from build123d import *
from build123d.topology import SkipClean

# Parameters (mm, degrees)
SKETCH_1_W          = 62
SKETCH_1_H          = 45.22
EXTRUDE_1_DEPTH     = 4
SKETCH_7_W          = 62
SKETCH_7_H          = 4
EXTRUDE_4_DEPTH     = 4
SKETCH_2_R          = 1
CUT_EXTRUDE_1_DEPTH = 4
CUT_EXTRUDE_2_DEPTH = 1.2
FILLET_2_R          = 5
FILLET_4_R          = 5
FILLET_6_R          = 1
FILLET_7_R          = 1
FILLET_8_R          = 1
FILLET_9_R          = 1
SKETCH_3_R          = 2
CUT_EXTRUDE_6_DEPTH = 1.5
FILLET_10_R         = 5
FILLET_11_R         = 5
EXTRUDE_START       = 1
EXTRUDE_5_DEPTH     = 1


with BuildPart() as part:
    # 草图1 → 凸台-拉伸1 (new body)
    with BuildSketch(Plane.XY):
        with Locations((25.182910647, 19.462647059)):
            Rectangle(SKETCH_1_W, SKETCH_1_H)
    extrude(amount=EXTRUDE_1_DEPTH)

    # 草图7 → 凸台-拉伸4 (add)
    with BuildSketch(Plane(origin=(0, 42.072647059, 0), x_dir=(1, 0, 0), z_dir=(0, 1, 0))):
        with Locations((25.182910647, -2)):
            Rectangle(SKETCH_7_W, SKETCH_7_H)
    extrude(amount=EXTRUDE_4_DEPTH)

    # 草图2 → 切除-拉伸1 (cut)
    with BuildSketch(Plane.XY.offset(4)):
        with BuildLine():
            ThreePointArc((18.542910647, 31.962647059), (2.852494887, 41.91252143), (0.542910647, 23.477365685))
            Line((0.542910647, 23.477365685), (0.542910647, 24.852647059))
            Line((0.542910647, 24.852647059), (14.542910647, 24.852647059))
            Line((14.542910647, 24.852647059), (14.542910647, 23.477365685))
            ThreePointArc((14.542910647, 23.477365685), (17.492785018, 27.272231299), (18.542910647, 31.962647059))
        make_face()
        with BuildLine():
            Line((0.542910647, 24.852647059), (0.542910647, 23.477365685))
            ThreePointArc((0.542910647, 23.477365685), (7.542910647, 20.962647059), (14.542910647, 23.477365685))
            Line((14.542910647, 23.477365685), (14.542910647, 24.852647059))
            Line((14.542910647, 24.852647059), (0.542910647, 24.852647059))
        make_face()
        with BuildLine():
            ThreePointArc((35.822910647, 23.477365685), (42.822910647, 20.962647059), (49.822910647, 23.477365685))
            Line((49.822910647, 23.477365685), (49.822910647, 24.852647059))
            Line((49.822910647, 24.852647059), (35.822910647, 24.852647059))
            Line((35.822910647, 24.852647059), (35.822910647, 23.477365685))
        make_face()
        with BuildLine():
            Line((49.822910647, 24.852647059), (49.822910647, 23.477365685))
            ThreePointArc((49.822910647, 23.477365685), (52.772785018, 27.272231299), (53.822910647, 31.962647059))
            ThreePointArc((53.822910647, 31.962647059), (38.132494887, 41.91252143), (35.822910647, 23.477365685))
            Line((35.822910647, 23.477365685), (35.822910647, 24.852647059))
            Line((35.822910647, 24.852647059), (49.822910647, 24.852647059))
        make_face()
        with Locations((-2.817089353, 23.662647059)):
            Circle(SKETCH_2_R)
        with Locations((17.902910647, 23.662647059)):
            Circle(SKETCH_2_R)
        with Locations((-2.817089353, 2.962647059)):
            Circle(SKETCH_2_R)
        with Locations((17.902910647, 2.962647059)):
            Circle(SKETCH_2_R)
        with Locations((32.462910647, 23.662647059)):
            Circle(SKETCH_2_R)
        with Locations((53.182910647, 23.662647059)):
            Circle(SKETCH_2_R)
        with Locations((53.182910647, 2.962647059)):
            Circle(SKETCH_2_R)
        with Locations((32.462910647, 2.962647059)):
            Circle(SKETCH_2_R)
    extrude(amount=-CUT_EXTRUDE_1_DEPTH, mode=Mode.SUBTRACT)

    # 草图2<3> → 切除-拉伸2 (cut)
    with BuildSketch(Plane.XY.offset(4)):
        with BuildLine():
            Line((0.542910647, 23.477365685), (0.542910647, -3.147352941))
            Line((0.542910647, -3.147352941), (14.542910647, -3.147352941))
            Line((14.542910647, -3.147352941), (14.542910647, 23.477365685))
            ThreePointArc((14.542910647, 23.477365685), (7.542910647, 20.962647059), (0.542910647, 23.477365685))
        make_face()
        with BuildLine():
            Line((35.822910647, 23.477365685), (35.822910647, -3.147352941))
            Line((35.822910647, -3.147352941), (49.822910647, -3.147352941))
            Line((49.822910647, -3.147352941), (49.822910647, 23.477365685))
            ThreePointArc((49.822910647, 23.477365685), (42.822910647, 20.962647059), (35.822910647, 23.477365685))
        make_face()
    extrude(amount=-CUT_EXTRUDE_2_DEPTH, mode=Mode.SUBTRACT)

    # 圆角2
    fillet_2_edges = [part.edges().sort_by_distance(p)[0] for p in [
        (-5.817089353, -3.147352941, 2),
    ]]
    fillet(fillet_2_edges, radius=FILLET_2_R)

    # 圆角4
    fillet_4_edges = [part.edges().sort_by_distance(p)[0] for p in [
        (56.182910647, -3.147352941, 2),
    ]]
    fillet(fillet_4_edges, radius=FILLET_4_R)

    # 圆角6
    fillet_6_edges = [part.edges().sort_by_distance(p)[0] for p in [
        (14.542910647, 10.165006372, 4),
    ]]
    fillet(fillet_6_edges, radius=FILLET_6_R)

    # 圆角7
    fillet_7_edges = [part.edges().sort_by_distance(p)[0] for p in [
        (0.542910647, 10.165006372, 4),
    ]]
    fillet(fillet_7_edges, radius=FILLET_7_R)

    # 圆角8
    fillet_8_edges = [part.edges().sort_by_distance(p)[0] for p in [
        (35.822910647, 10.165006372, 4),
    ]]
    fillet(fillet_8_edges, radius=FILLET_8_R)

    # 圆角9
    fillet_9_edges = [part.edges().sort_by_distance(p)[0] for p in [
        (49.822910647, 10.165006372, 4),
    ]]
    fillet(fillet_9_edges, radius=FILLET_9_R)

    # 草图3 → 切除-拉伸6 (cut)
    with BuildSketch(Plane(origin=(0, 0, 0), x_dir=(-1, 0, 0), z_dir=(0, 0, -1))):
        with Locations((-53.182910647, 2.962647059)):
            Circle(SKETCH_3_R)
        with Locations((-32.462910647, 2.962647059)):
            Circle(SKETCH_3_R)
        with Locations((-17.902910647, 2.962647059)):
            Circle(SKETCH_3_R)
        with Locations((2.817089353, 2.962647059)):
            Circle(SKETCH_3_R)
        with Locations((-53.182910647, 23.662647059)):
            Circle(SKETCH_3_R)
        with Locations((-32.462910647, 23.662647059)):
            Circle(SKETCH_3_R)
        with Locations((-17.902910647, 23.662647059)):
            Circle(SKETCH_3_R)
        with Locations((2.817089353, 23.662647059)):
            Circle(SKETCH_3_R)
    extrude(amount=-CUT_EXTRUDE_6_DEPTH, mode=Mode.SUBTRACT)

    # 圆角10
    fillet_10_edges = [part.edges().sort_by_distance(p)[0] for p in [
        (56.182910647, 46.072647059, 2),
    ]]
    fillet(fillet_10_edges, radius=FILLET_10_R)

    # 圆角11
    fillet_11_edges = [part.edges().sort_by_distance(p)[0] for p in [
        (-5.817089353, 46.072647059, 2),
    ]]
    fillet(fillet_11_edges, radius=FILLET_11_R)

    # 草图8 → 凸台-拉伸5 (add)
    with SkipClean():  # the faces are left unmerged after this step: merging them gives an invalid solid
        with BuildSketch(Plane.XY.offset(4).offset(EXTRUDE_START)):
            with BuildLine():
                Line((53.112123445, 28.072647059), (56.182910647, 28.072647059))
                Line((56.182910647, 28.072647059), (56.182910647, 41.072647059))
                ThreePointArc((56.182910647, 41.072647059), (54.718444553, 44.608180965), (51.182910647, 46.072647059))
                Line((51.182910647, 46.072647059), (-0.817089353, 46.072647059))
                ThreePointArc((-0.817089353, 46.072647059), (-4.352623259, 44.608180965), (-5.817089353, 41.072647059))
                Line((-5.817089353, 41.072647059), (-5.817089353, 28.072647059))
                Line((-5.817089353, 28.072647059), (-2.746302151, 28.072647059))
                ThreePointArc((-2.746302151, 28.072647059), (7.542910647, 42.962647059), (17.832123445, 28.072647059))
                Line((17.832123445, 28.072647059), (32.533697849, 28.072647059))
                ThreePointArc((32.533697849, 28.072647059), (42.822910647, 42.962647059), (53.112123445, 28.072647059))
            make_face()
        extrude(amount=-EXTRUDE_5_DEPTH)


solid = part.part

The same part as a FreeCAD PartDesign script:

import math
import FreeCAD as App
import Part
import Sketcher
from FreeCAD import Vector
Q = App.Units.Quantity


def edges_at(feature, points):
    """Names of the edges that pass closest to the given points."""
    edges = feature.Shape.Edges
    near = lambda p: min(range(len(edges)), key=lambda i: edges[i].distToShape(Part.Vertex(*p))[0])
    return sorted({f"Edge{near(p) + 1}" for p in points})

doc = App.newDocument("Part")
body = doc.addObject("PartDesign::Body", "Body")

# Sketch on XY plane
sketch1 = doc.addObject("Sketcher::SketchObject", "Sketch")
body.addObject(sketch1)
sketch1.AttachmentSupport = (doc.XY_Plane, [""])
sketch1.MapMode = "FlatFace"
sketch1.addGeometry(Part.LineSegment(Vector(-6, 42, 0), Vector(-6, -3, 0)), False)
sketch1.addGeometry(Part.LineSegment(Vector(-6, -3, 0), Vector(56, -3, 0)), False)
sketch1.addGeometry(Part.LineSegment(Vector(56, -3, 0), Vector(56, 42, 0)), False)
sketch1.addGeometry(Part.LineSegment(Vector(56, 42, 0), Vector(-6, 42, 0)), False)
sketch1.addConstraint(Sketcher.Constraint("Coincident", 0, 2, 1, 1))
sketch1.addConstraint(Sketcher.Constraint("Coincident", 1, 2, 2, 1))
sketch1.addConstraint(Sketcher.Constraint("Coincident", 2, 2, 3, 1))
sketch1.addConstraint(Sketcher.Constraint("Coincident", 3, 2, 0, 1))
sketch1.addConstraint(Sketcher.Constraint("Vertical", 0))
sketch1.addConstraint(Sketcher.Constraint("Horizontal", 1))
sketch1.addConstraint(Sketcher.Constraint("Vertical", 2))
sketch1.addConstraint(Sketcher.Constraint("Horizontal", 3))
sketch1.addConstraint(Sketcher.Constraint("DistanceX", 1, 1, 1, 2, Q("62 mm")))
sketch1.addConstraint(Sketcher.Constraint("DistanceY", 0, 2, 0, 1, Q("45.22 mm")))
sketch1.addConstraint(Sketcher.Constraint("DistanceX", 0, 2, -1, 1, Q("5.817089 mm")))
sketch1.addConstraint(Sketcher.Constraint("DistanceY", 0, 2, -1, 1, Q("3.147353 mm")))
pad1 = doc.addObject("PartDesign::Pad", "Pad")
body.addObject(pad1)
pad1.Profile = sketch1
pad1.Length = 4

# Sketch on XZ plane
sketch2 = doc.addObject("Sketcher::SketchObject", "Sketch001")
body.addObject(sketch2)
sketch2.AttachmentSupport = (doc.XZ_Plane, [""])
sketch2.MapMode = "FlatFace"
sketch2.AttachmentOffset = App.Placement(Vector(0, 0, -42.072647), App.Rotation())
sketch2.addGeometry(Part.LineSegment(Vector(-5.8, 0, 0), Vector(-5.8, 4, 0)), False)
sketch2.addGeometry(Part.LineSegment(Vector(-5.8, 4, 0), Vector(56.2, 4, 0)), False)
sketch2.addGeometry(Part.LineSegment(Vector(56.2, 4, 0), Vector(56.2, 0, 0)), False)
sketch2.addGeometry(Part.LineSegment(Vector(56.2, 0, 0), Vector(-5.8, 0, 0)), False)
sketch2.addConstraint(Sketcher.Constraint("Coincident", 0, 2, 1, 1))
sketch2.addConstraint(Sketcher.Constraint("Coincident", 1, 2, 2, 1))
sketch2.addConstraint(Sketcher.Constraint("Coincident", 2, 2, 3, 1))
sketch2.addConstraint(Sketcher.Constraint("Coincident", 3, 2, 0, 1))
sketch2.addConstraint(Sketcher.Constraint("Vertical", 0))
sketch2.addConstraint(Sketcher.Constraint("Horizontal", 1))
sketch2.addConstraint(Sketcher.Constraint("Vertical", 2))
sketch2.addConstraint(Sketcher.Constraint("Horizontal", 3))
sketch2.addConstraint(Sketcher.Constraint("PointOnObject", 2, 2, -1))
sketch2.addConstraint(Sketcher.Constraint("DistanceX", 1, 1, 1, 2, Q("62 mm")))
sketch2.addConstraint(Sketcher.Constraint("DistanceY", 0, 1, 0, 2, Q("4 mm")))
sketch2.addConstraint(Sketcher.Constraint("DistanceX", 0, 2, -1, 1, Q("5.817089 mm")))
pad2 = doc.addObject("PartDesign::Pad", "Pad001")
body.addObject(pad2)
pad2.Profile = sketch2
pad2.Length = 4
pad2.Reversed = True

# Sketch on XY plane
sketch3 = doc.addObject("Sketcher::SketchObject", "Sketch002")
body.addObject(sketch3)
sketch3.AttachmentSupport = (doc.XY_Plane, [""])
sketch3.MapMode = "FlatFace"
sketch3.AttachmentOffset = App.Placement(Vector(0, 0, 4), App.Rotation())
sketch3.addGeometry(Part.ArcOfCircle(Part.Circle(Vector(7.5, 32, 0), Vector(0, 0, 1), 11), math.radians(0), math.radians(230)), False)
sketch3.addGeometry(Part.ArcOfCircle(Part.Circle(Vector(7.5, 32, 0), Vector(0, 0, 1), 11), math.radians(-130), math.radians(-50)), False)
sketch3.addGeometry(Part.ArcOfCircle(Part.Circle(Vector(7.5, 32, 0), Vector(0, 0, 1), 11), math.radians(-50), math.radians(0)), False)
sketch3.addGeometry(Part.ArcOfCircle(Part.Circle(Vector(42.8, 32, 0), Vector(0, 0, 1), 11), math.radians(-130), math.radians(-50)), False)
sketch3.addGeometry(Part.ArcOfCircle(Part.Circle(Vector(42.8, 32, 0), Vector(0, 0, 1), 11), math.radians(-50), math.radians(0)), False)
sketch3.addGeometry(Part.ArcOfCircle(Part.Circle(Vector(42.8, 32, 0), Vector(0, 0, 1), 11), math.radians(0), math.radians(230)), False)
sketch3.addGeometry(Part.Circle(Vector(-2.8, 23.7, 0), Vector(0, 0, 1), 1), False)
sketch3.addGeometry(Part.Circle(Vector(17.9, 23.7, 0), Vector(0, 0, 1), 1), False)
sketch3.addGeometry(Part.Circle(Vector(-2.8, 3, 0), Vector(0, 0, 1), 1), False)
sketch3.addGeometry(Part.Circle(Vector(17.9, 3, 0), Vector(0, 0, 1), 1), False)
sketch3.addGeometry(Part.Circle(Vector(32.5, 23.7, 0), Vector(0, 0, 1), 1), False)
sketch3.addGeometry(Part.Circle(Vector(53.2, 23.7, 0), Vector(0, 0, 1), 1), False)
sketch3.addGeometry(Part.Circle(Vector(53.2, 3, 0), Vector(0, 0, 1), 1), False)
sketch3.addGeometry(Part.Circle(Vector(32.5, 3, 0), Vector(0, 0, 1), 1), False)
sketch3.addConstraint(Sketcher.Constraint("Tangent", 0, 2, 1, 1))
sketch3.addConstraint(Sketcher.Constraint("Tangent", 1, 2, 2, 1))
sketch3.addConstraint(Sketcher.Constraint("Tangent", 2, 2, 0, 1))
sketch3.addConstraint(Sketcher.Constraint("Tangent", 3, 2, 4, 1))
sketch3.addConstraint(Sketcher.Constraint("Tangent", 4, 2, 5, 1))
sketch3.addConstraint(Sketcher.Constraint("Tangent", 5, 2, 3, 1))
sketch3.addConstraint(Sketcher.Constraint("Equal", 2, 3))
sketch3.addConstraint(Sketcher.Constraint("Equal", 6, 7))
sketch3.addConstraint(Sketcher.Constraint("Equal", 7, 8))
sketch3.addConstraint(Sketcher.Constraint("Equal", 8, 9))
sketch3.addConstraint(Sketcher.Constraint("Equal", 9, 10))
sketch3.addConstraint(Sketcher.Constraint("Equal", 10, 11))
sketch3.addConstraint(Sketcher.Constraint("Equal", 11, 12))
sketch3.addConstraint(Sketcher.Constraint("Equal", 12, 13))
sketch3.addConstraint(Sketcher.Constraint("Horizontal", 2, 3, 3, 3))
sketch3.addConstraint(Sketcher.Constraint("Horizontal", 6, 3, 7, 3))
sketch3.addConstraint(Sketcher.Constraint("Horizontal", 8, 3, 9, 3))
sketch3.addConstraint(Sketcher.Constraint("Horizontal", 7, 3, 10, 3))
sketch3.addConstraint(Sketcher.Constraint("Horizontal", 10, 3, 11, 3))
sketch3.addConstraint(Sketcher.Constraint("Horizontal", 9, 3, 12, 3))
sketch3.addConstraint(Sketcher.Constraint("Horizontal", 12, 3, 13, 3))
sketch3.addConstraint(Sketcher.Constraint("Horizontal", 0, 2, 1, 2))
sketch3.addConstraint(Sketcher.Constraint("Horizontal", 5, 3, 2, 2))
sketch3.addConstraint(Sketcher.Constraint("Horizontal", 1, 2, 3, 2))
sketch3.addConstraint(Sketcher.Constraint("Horizontal", 2, 2, 4, 2))
sketch3.addConstraint(Sketcher.Constraint("Horizontal", 3, 2, 5, 2))
sketch3.addConstraint(Sketcher.Constraint("Vertical", 6, 3, 8, 3))
sketch3.addConstraint(Sketcher.Constraint("Vertical", 7, 3, 9, 3))
sketch3.addConstraint(Sketcher.Constraint("Vertical", 11, 3, 12, 3))
sketch3.addConstraint(Sketcher.Constraint("Vertical", 10, 3, 13, 3))
sketch3.addConstraint(Sketcher.Constraint("Diameter", 6, Q("2 mm")))
sketch3.addConstraint(Sketcher.Constraint("Radius", 0, Q("11 mm")))
sketch3.addConstraint(Sketcher.Constraint("DistanceY", 8, 3, 1, 3, Q("29 mm")))
sketch3.addConstraint(Sketcher.Constraint("DistanceX", 0, 2, 1, 3, Q("7 mm")))
sketch3.addConstraint(Sketcher.Constraint("DistanceY", 6, 3, 1, 3, Q("8.3 mm")))
sketch3.addConstraint(Sketcher.Constraint("DistanceX", 2, 3, 3, 3, Q("35.28 mm")))
sketch3.addConstraint(Sketcher.Constraint("DistanceX", 6, 3, 1, 3, Q("10.36 mm")))
sketch3.addConstraint(Sketcher.Constraint("DistanceX", 2, 3, 7, 3, Q("10.36 mm")))
sketch3.addConstraint(Sketcher.Constraint("DistanceX", 10, 3, 3, 3, Q("10.36 mm")))
sketch3.addConstraint(Sketcher.Constraint("DistanceX", 4, 3, 11, 3, Q("10.36 mm")))
sketch3.addConstraint(Sketcher.Constraint("DistanceX", -1, 1, 0, 3, Q("7.542911 mm")))
sketch3.addConstraint(Sketcher.Constraint("DistanceY", -1, 1, 0, 3, Q("31.962647 mm")))
pocket1 = doc.addObject("PartDesign::Pocket", "Pocket")
body.addObject(pocket1)
pocket1.Profile = sketch3
pocket1.Length = 4

# Sketch on XY plane
sketch4 = doc.addObject("Sketcher::SketchObject", "Sketch003")
body.addObject(sketch4)
sketch4.AttachmentSupport = (doc.XY_Plane, [""])
sketch4.MapMode = "FlatFace"
sketch4.AttachmentOffset = App.Placement(Vector(0, 0, 4), App.Rotation())
sketch4.addGeometry(Part.LineSegment(Vector(1, 23, 0), Vector(1, -3, 0)), False)
sketch4.addGeometry(Part.LineSegment(Vector(1, -3, 0), Vector(15, -3, 0)), False)
sketch4.addGeometry(Part.LineSegment(Vector(15, -3, 0), Vector(15, 23, 0)), False)
sketch4.addGeometry(Part.ArcOfCircle(Part.Circle(Vector(8, 32, 0), Vector(0, 0, 1), 11), math.radians(-130), math.radians(-50)), False)
sketch4.addGeometry(Part.LineSegment(Vector(36, 23, 0), Vector(36, -3, 0)), False)
sketch4.addGeometry(Part.LineSegment(Vector(36, -3, 0), Vector(50, -3, 0)), False)
sketch4.addGeometry(Part.LineSegment(Vector(50, -3, 0), Vector(50, 23, 0)), False)
sketch4.addGeometry(Part.ArcOfCircle(Part.Circle(Vector(43, 32, 0), Vector(0, 0, 1), 11), math.radians(-130), math.radians(-50)), False)
sketch4.addConstraint(Sketcher.Constraint("Coincident", 0, 2, 1, 1))
sketch4.addConstraint(Sketcher.Constraint("Coincident", 1, 2, 2, 1))
sketch4.addConstraint(Sketcher.Constraint("Coincident", 2, 2, 3, 2))
sketch4.addConstraint(Sketcher.Constraint("Coincident", 3, 1, 0, 1))
sketch4.addConstraint(Sketcher.Constraint("Coincident", 4, 2, 5, 1))
sketch4.addConstraint(Sketcher.Constraint("Coincident", 5, 2, 6, 1))
sketch4.addConstraint(Sketcher.Constraint("Coincident", 6, 2, 7, 2))
sketch4.addConstraint(Sketcher.Constraint("Coincident", 7, 1, 4, 1))
sketch4.addConstraint(Sketcher.Constraint("Vertical", 0))
sketch4.addConstraint(Sketcher.Constraint("Horizontal", 1))
sketch4.addConstraint(Sketcher.Constraint("Vertical", 2))
sketch4.addConstraint(Sketcher.Constraint("Vertical", 4))
sketch4.addConstraint(Sketcher.Constraint("Horizontal", 5))
sketch4.addConstraint(Sketcher.Constraint("Vertical", 6))
sketch4.addConstraint(Sketcher.Constraint("Equal", 3, 7))
sketch4.addConstraint(Sketcher.Constraint("Horizontal", 3, 3, 7, 3))
sketch4.addConstraint(Sketcher.Constraint("Horizontal", 2, 2, 3, 1))
sketch4.addConstraint(Sketcher.Constraint("Horizontal", 1, 2, 4, 2))
sketch4.addConstraint(Sketcher.Constraint("Horizontal", 3, 1, 6, 2))
sketch4.addConstraint(Sketcher.Constraint("Horizontal", 6, 2, 7, 1))
sketch4.addConstraint(Sketcher.Constraint("Radius", 3, Q("11 mm")))
sketch4.addConstraint(Sketcher.Constraint("DistanceX", 1, 1, 1, 2, Q("14 mm")))
sketch4.addConstraint(Sketcher.Constraint("DistanceX", 3, 3, 7, 3, Q("35.28 mm")))
sketch4.addConstraint(Sketcher.Constraint("DistanceY", 0, 2, 3, 3, Q("35.11 mm")))
sketch4.addConstraint(Sketcher.Constraint("DistanceX", -1, 1, 3, 3, Q("7.542911 mm")))
sketch4.addConstraint(Sketcher.Constraint("DistanceY", -1, 1, 3, 3, Q("31.962647 mm")))
pocket2 = doc.addObject("PartDesign::Pocket", "Pocket001")
body.addObject(pocket2)
pocket2.Profile = sketch4
pocket2.Length = 1.2
doc.recompute()

fillet = doc.addObject("PartDesign::Fillet", "Fillet")
body.addObject(fillet)
fillet.Base = (pocket2, edges_at(pocket2, [(-5.817, -3.147, 2)]))
fillet.Radius = 5
doc.recompute()

fillet2 = doc.addObject("PartDesign::Fillet", "Fillet001")
body.addObject(fillet2)
fillet2.Base = (fillet, edges_at(fillet, [(56.183, -3.147, 2)]))
fillet2.Radius = 5
doc.recompute()

fillet3 = doc.addObject("PartDesign::Fillet", "Fillet002")
body.addObject(fillet3)
fillet3.Base = (fillet2, edges_at(fillet2, [(14.543, 10.165, 4)]))
fillet3.Radius = 1
doc.recompute()

fillet4 = doc.addObject("PartDesign::Fillet", "Fillet003")
body.addObject(fillet4)
fillet4.Base = (fillet3, edges_at(fillet3, [(0.543, 10.165, 4)]))
fillet4.Radius = 1
doc.recompute()

fillet5 = doc.addObject("PartDesign::Fillet", "Fillet004")
body.addObject(fillet5)
fillet5.Base = (fillet4, edges_at(fillet4, [(35.823, 10.165, 4)]))
fillet5.Radius = 1
doc.recompute()

fillet6 = doc.addObject("PartDesign::Fillet", "Fillet005")
body.addObject(fillet6)
fillet6.Base = (fillet5, edges_at(fillet5, [(49.823, 10.165, 4)]))
fillet6.Radius = 1

# Sketch on XY plane
sketch5 = doc.addObject("Sketcher::SketchObject", "Sketch004")
body.addObject(sketch5)
sketch5.AttachmentSupport = (doc.XY_Plane, [""])
sketch5.MapMode = "FlatFace"
sketch5.addGeometry(Part.Circle(Vector(53.2, 3, 0), Vector(0, 0, 1), 2), False)
sketch5.addGeometry(Part.Circle(Vector(32.5, 3, 0), Vector(0, 0, 1), 2), False)
sketch5.addGeometry(Part.Circle(Vector(17.9, 3, 0), Vector(0, 0, 1), 2), False)
sketch5.addGeometry(Part.Circle(Vector(-2.8, 3, 0), Vector(0, 0, 1), 2), False)
sketch5.addGeometry(Part.Circle(Vector(53.2, 23.7, 0), Vector(0, 0, 1), 2), False)
sketch5.addGeometry(Part.Circle(Vector(32.5, 23.7, 0), Vector(0, 0, 1), 2), False)
sketch5.addGeometry(Part.Circle(Vector(17.9, 23.7, 0), Vector(0, 0, 1), 2), False)
sketch5.addGeometry(Part.Circle(Vector(-2.8, 23.7, 0), Vector(0, 0, 1), 2), False)
sketch5.addConstraint(Sketcher.Constraint("Equal", 0, 1))
sketch5.addConstraint(Sketcher.Constraint("Equal", 1, 2))
sketch5.addConstraint(Sketcher.Constraint("Equal", 2, 3))
sketch5.addConstraint(Sketcher.Constraint("Equal", 3, 4))
sketch5.addConstraint(Sketcher.Constraint("Equal", 4, 5))
sketch5.addConstraint(Sketcher.Constraint("Equal", 5, 6))
sketch5.addConstraint(Sketcher.Constraint("Equal", 6, 7))
sketch5.addConstraint(Sketcher.Constraint("Horizontal", 0, 3, 1, 3))
sketch5.addConstraint(Sketcher.Constraint("Horizontal", 1, 3, 2, 3))
sketch5.addConstraint(Sketcher.Constraint("Horizontal", 2, 3, 3, 3))
sketch5.addConstraint(Sketcher.Constraint("Horizontal", 4, 3, 5, 3))
sketch5.addConstraint(Sketcher.Constraint("Horizontal", 5, 3, 6, 3))
sketch5.addConstraint(Sketcher.Constraint("Horizontal", 6, 3, 7, 3))
sketch5.addConstraint(Sketcher.Constraint("Vertical", 0, 3, 4, 3))
sketch5.addConstraint(Sketcher.Constraint("Vertical", 1, 3, 5, 3))
sketch5.addConstraint(Sketcher.Constraint("Vertical", 2, 3, 6, 3))
sketch5.addConstraint(Sketcher.Constraint("Vertical", 3, 3, 7, 3))
sketch5.addConstraint(Sketcher.Constraint("Diameter", 0, Q("4 mm")))
sketch5.addConstraint(Sketcher.Constraint("DistanceX", 3, 3, 0, 3, Q("56 mm")))
sketch5.addConstraint(Sketcher.Constraint("DistanceY", 0, 3, 4, 3, Q("20.7 mm")))
sketch5.addConstraint(Sketcher.Constraint("DistanceX", 1, 3, 0, 3, Q("20.72 mm")))
sketch5.addConstraint(Sketcher.Constraint("DistanceX", 2, 3, 1, 3, Q("14.56 mm")))
sketch5.addConstraint(Sketcher.Constraint("DistanceX", -1, 1, 0, 3, Q("53.182911 mm")))
sketch5.addConstraint(Sketcher.Constraint("DistanceY", -1, 1, 0, 3, Q("2.962647 mm")))
pocket3 = doc.addObject("PartDesign::Pocket", "Pocket002")
body.addObject(pocket3)
pocket3.Profile = sketch5
pocket3.Length = 1.5
pocket3.Reversed = True
doc.recompute()

fillet7 = doc.addObject("PartDesign::Fillet", "Fillet006")
body.addObject(fillet7)
fillet7.Base = (pocket3, edges_at(pocket3, [(56.183, 46.073, 2)]))
fillet7.Radius = 5
doc.recompute()

fillet8 = doc.addObject("PartDesign::Fillet", "Fillet007")
body.addObject(fillet8)
fillet8.Base = (fillet7, edges_at(fillet7, [(-5.817, 46.073, 2)]))
fillet8.Radius = 5

# Sketch on XY plane
sketch6 = doc.addObject("Sketcher::SketchObject", "Sketch005")
body.addObject(sketch6)
sketch6.AttachmentSupport = (doc.XY_Plane, [""])
sketch6.MapMode = "FlatFace"
sketch6.AttachmentOffset = App.Placement(Vector(0, 0, 5), App.Rotation())
sketch6.addGeometry(Part.LineSegment(Vector(53.1, 28.1, 0), Vector(56.2, 28.1, 0)), False)
sketch6.addGeometry(Part.LineSegment(Vector(56.2, 28.1, 0), Vector(56.2, 41.1, 0)), False)
sketch6.addGeometry(Part.ArcOfCircle(Part.Circle(Vector(51.2, 41.1, 0), Vector(0, 0, 1), 5), math.radians(0), math.radians(90)), False)
sketch6.addGeometry(Part.LineSegment(Vector(51.2, 46.1, 0), Vector(-0.8, 46.1, 0)), False)
sketch6.addGeometry(Part.ArcOfCircle(Part.Circle(Vector(-0.8, 41.1, 0), Vector(0, 0, 1), 5), math.radians(90), math.radians(180)), False)
sketch6.addGeometry(Part.LineSegment(Vector(-5.8, 41.1, 0), Vector(-5.8, 28.1, 0)), False)
sketch6.addGeometry(Part.LineSegment(Vector(-5.8, 28.1, 0), Vector(-2.7, 28.1, 0)), False)
sketch6.addGeometry(Part.ArcOfCircle(Part.Circle(Vector(7.5, 32, 0), Vector(0, 0, 1), 11), math.radians(-21), math.radians(201)), False)
sketch6.addGeometry(Part.LineSegment(Vector(17.8, 28.1, 0), Vector(32.5, 28.1, 0)), False)
sketch6.addGeometry(Part.ArcOfCircle(Part.Circle(Vector(42.8, 32, 0), Vector(0, 0, 1), 11), math.radians(-21), math.radians(201)), False)
sketch6.addConstraint(Sketcher.Constraint("Coincident", 0, 2, 1, 1))
sketch6.addConstraint(Sketcher.Constraint("Tangent", 1, 2, 2, 1))
sketch6.addConstraint(Sketcher.Constraint("Tangent", 2, 2, 3, 1))
sketch6.addConstraint(Sketcher.Constraint("Tangent", 3, 2, 4, 1))
sketch6.addConstraint(Sketcher.Constraint("Tangent", 4, 2, 5, 1))
sketch6.addConstraint(Sketcher.Constraint("Coincident", 5, 2, 6, 1))
sketch6.addConstraint(Sketcher.Constraint("Coincident", 6, 2, 7, 2))
sketch6.addConstraint(Sketcher.Constraint("Coincident", 7, 1, 8, 1))
sketch6.addConstraint(Sketcher.Constraint("Coincident", 8, 2, 9, 2))
sketch6.addConstraint(Sketcher.Constraint("Coincident", 9, 1, 0, 1))
sketch6.addConstraint(Sketcher.Constraint("Horizontal", 0))
sketch6.addConstraint(Sketcher.Constraint("Vertical", 1))
sketch6.addConstraint(Sketcher.Constraint("Horizontal", 3))
sketch6.addConstraint(Sketcher.Constraint("Vertical", 5))
sketch6.addConstraint(Sketcher.Constraint("Horizontal", 6))
sketch6.addConstraint(Sketcher.Constraint("Horizontal", 8))
sketch6.addConstraint(Sketcher.Constraint("Equal", 2, 4))
sketch6.addConstraint(Sketcher.Constraint("Equal", 7, 9))
sketch6.addConstraint(Sketcher.Constraint("Horizontal", 7, 3, 9, 3))
sketch6.addConstraint(Sketcher.Constraint("Horizontal", 0, 2, 5, 2))
sketch6.addConstraint(Sketcher.Constraint("Horizontal", 6, 2, 7, 1))
sketch6.addConstraint(Sketcher.Constraint("Equal", 0, 6))
sketch6.addConstraint(Sketcher.Constraint("Radius", 2, Q("5 mm")))
sketch6.addConstraint(Sketcher.Constraint("Radius", 7, Q("11 mm")))
sketch6.addConstraint(Sketcher.Constraint("DistanceX", 3, 2, 3, 1, Q("52 mm")))
sketch6.addConstraint(Sketcher.Constraint("DistanceY", 1, 1, 1, 2, Q("13 mm")))
sketch6.addConstraint(Sketcher.Constraint("DistanceX", 4, 3, 7, 3, Q("8.36 mm")))
sketch6.addConstraint(Sketcher.Constraint("DistanceY", 7, 3, 4, 3, Q("9.11 mm")))
sketch6.addConstraint(Sketcher.Constraint("DistanceX", -1, 1, 2, 3, Q("51.182911 mm")))
sketch6.addConstraint(Sketcher.Constraint("DistanceY", -1, 1, 2, 3, Q("41.072647 mm")))
pad3 = doc.addObject("PartDesign::Pad", "Pad002")
body.addObject(pad3)
pad3.Profile = sketch6
pad3.Length = 1
pad3.Reversed = True

doc.recompute()
